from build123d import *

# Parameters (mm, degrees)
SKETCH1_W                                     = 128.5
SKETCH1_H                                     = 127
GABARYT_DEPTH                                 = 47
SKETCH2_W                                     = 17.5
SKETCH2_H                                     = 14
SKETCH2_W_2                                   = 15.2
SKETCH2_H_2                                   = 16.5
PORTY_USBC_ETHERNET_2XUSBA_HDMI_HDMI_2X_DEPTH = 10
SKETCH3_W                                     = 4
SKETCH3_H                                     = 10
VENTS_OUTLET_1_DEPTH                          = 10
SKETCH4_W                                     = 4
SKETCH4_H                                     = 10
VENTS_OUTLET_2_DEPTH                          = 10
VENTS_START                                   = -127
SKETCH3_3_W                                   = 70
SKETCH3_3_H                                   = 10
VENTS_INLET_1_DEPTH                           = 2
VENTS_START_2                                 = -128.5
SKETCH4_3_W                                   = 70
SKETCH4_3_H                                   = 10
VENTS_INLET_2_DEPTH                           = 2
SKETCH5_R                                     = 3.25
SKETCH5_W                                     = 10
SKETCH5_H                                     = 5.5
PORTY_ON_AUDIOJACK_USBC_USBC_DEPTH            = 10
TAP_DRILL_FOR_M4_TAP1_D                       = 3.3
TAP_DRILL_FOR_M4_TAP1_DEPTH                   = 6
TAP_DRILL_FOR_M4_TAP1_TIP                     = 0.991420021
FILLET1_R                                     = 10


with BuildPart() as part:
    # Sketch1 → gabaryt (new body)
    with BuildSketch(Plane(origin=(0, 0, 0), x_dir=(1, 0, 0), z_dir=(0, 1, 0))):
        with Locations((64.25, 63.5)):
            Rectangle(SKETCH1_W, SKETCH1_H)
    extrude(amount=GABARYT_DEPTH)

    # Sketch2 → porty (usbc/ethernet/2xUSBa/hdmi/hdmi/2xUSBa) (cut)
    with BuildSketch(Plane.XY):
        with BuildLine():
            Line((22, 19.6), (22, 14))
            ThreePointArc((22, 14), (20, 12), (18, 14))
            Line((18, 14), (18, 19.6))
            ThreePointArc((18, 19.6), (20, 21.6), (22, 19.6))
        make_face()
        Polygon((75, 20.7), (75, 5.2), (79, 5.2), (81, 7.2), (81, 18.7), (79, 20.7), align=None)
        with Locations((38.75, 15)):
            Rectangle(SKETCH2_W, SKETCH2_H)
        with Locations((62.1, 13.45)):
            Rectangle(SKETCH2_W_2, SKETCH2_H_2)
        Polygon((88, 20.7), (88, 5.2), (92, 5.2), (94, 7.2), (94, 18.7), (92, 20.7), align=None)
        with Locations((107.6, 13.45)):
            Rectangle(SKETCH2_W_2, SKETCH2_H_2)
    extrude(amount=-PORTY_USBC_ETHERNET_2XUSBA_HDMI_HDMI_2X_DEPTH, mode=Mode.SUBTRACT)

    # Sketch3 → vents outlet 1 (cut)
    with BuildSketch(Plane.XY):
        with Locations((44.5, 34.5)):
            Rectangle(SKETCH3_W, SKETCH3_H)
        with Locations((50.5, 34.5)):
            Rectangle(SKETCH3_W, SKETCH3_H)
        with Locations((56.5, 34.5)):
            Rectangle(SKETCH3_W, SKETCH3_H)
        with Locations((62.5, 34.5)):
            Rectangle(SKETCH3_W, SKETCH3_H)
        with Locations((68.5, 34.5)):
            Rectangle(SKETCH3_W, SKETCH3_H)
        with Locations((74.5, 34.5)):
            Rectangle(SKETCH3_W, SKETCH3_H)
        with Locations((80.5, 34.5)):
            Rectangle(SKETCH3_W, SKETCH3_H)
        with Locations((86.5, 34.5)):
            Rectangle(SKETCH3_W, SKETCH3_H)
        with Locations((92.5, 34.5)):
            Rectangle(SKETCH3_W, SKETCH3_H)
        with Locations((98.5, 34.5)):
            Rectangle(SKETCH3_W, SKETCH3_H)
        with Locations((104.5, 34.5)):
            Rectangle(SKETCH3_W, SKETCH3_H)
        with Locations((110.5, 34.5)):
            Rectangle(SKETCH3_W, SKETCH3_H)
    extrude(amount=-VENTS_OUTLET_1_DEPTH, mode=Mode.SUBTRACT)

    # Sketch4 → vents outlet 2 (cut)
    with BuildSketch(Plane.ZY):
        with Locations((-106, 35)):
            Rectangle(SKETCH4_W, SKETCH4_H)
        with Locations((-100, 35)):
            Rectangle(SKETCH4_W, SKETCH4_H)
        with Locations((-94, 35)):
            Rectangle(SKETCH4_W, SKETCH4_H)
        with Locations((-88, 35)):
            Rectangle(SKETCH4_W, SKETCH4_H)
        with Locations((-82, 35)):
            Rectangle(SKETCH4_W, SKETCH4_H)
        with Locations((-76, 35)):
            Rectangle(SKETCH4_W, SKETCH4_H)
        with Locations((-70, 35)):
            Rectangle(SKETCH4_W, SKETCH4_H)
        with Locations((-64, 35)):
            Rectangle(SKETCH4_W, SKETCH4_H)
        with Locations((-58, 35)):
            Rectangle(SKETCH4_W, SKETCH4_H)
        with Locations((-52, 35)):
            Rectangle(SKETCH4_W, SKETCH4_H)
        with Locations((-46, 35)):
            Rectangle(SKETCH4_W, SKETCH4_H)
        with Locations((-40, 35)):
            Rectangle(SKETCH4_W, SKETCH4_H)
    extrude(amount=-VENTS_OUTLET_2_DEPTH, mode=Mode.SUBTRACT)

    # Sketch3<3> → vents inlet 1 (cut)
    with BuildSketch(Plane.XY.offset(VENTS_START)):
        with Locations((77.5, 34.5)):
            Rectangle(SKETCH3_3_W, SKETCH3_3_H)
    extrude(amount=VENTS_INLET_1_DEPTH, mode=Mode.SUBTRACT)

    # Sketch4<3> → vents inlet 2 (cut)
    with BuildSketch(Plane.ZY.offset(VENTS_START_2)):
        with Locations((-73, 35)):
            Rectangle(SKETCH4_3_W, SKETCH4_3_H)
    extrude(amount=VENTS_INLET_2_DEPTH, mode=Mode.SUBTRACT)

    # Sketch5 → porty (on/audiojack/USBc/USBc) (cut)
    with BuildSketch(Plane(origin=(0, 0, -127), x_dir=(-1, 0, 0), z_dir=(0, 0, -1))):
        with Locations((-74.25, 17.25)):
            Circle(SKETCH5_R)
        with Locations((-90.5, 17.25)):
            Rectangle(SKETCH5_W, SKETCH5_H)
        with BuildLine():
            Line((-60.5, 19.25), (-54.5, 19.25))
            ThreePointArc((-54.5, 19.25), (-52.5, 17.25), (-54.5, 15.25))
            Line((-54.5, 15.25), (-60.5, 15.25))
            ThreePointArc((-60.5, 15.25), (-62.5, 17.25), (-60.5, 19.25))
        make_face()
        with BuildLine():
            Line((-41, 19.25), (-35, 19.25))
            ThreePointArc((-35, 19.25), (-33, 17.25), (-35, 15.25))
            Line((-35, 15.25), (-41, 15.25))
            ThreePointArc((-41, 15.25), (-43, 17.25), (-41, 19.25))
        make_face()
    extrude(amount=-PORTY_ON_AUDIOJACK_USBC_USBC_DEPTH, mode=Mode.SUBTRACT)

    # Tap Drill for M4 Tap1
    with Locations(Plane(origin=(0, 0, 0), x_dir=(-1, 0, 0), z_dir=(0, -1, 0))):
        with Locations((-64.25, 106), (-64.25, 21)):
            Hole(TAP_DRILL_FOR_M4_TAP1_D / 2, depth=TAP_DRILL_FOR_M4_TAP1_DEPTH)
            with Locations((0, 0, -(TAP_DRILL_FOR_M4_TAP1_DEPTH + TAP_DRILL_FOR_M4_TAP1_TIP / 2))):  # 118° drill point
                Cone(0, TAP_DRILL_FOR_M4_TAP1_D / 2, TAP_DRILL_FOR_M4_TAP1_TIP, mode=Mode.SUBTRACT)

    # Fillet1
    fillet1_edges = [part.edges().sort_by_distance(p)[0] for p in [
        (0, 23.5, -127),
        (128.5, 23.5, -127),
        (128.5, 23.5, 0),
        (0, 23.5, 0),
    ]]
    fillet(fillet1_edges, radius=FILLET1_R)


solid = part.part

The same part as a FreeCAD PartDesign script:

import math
import FreeCAD as App
import Part
import Sketcher


def edges_at(feature, points):
    """Names of the edges that pass closest to the given points."""
    edges = feature.Shape.Edges
    near = lambda p: min(range(len(edges)), key=lambda i: edges[i].distToShape(Part.Vertex(*p))[0])
    return sorted({f"Edge{near(p) + 1}" for p in points})

doc = App.newDocument("Part")
body = doc.addObject("PartDesign::Body", "Body")

# Sketch on XZ plane
sketch1 = body.newObject("Sketcher::SketchObject", "Sketch")
sketch1.AttachmentSupport = (doc.getObject("XZ_Plane"), [""])
sketch1.MapMode = "FlatFace"
sketch1.addGeometry(Part.LineSegment(App.Vector(0, -127, 0), App.Vector(0, 0, 0)), False)
sketch1.addGeometry(Part.LineSegment(App.Vector(0, 0, 0), App.Vector(128.5, 0, 0)), False)
sketch1.addGeometry(Part.LineSegment(App.Vector(128.5, 0, 0), App.Vector(128.5, -127, 0)), False)
sketch1.addGeometry(Part.LineSegment(App.Vector(128.5, -127, 0), App.Vector(0, -127, 0)), False)
sketch1.addConstraint(Sketcher.Constraint("Coincident", 0, 2, 1, 1))
sketch1.addConstraint(Sketcher.Constraint("Coincident", 1, 2, 2, 1))
sketch1.addConstraint(Sketcher.Constraint("Coincident", 2, 2, 3, 1))
sketch1.addConstraint(Sketcher.Constraint("Coincident", 3, 2, 0, 1))
sketch1.addConstraint(Sketcher.Constraint("Vertical", 0))
sketch1.addConstraint(Sketcher.Constraint("Horizontal", 1))
sketch1.addConstraint(Sketcher.Constraint("Vertical", 2))
sketch1.addConstraint(Sketcher.Constraint("Horizontal", 3))
sketch1.addConstraint(Sketcher.Constraint("Coincident", 0, 2, -1, 1))
sketch1.addConstraint(Sketcher.Constraint("DistanceY", 0, 1, 0, 2, 127.0))
sketch1.addConstraint(Sketcher.Constraint("DistanceX", 1, 1, 1, 2, 128.5))
pad1 = body.newObject("PartDesign::Pad", "Pad")
pad1.Profile = sketch1
pad1.Length = 47
pad1.Reversed = True

# Sketch on XY plane
sketch2 = body.newObject("Sketcher::SketchObject", "Sketch001")
sketch2.AttachmentSupport = (doc.getObject("XY_Plane"), [""])
sketch2.MapMode = "FlatFace"
sketch2.addGeometry(Part.LineSegment(App.Vector(22, 14, 0), App.Vector(22, 19.6, 0)), False)
sketch2.addGeometry(Part.ArcOfCircle(Part.Circle(App.Vector(20, 19.6, 0), App.Vector(0, 0, 1), 2), math.radians(0), math.radians(180)), False)
sketch2.addGeometry(Part.LineSegment(App.Vector(18, 19.6, 0), App.Vector(18, 14, 0)), False)
sketch2.addGeometry(Part.ArcOfCircle(Part.Circle(App.Vector(20, 14, 0), App.Vector(0, 0, 1), 2), math.radians(180), math.radians(360)), False)
sketch2.addGeometry(Part.LineSegment(App.Vector(75, 20.7, 0), App.Vector(75, 5.2, 0)), False)
sketch2.addGeometry(Part.LineSegment(App.Vector(75, 5.2, 0), App.Vector(79, 5.2, 0)), False)
sketch2.addGeometry(Part.LineSegment(App.Vector(79, 5.2, 0), App.Vector(81, 7.2, 0)), False)
sketch2.addGeometry(Part.LineSegment(App.Vector(81, 7.2, 0), App.Vector(81, 18.7, 0)), False)
sketch2.addGeometry(Part.LineSegment(App.Vector(81, 18.7, 0), App.Vector(79, 20.7, 0)), False)
sketch2.addGeometry(Part.LineSegment(App.Vector(79, 20.7, 0), App.Vector(75, 20.7, 0)), False)
sketch2.addGeometry(Part.LineSegment(App.Vector(30, 22, 0), App.Vector(30, 8, 0)), False)
sketch2.addGeometry(Part.LineSegment(App.Vector(30, 8, 0), App.Vector(47.5, 8, 0)), False)
sketch2.addGeometry(Part.LineSegment(App.Vector(47.5, 8, 0), App.Vector(47.5, 22, 0)), False)
sketch2.addGeometry(Part.LineSegment(App.Vector(47.5, 22, 0), App.Vector(30, 22, 0)), False)
sketch2.addGeometry(Part.LineSegment(App.Vector(54.5, 21.7, 0), App.Vector(54.5, 5.2, 0)), False)
sketch2.addGeometry(Part.LineSegment(App.Vector(54.5, 5.2, 0), App.Vector(69.7, 5.2, 0)), False)
sketch2.addGeometry(Part.LineSegment(App.Vector(69.7, 5.2, 0), App.Vector(69.7, 21.7, 0)), False)
sketch2.addGeometry(Part.LineSegment(App.Vector(69.7, 21.7, 0), App.Vector(54.5, 21.7, 0)), False)
sketch2.addGeometry(Part.LineSegment(App.Vector(88, 20.7, 0), App.Vector(88, 5.2, 0)), False)
sketch2.addGeometry(Part.LineSegment(App.Vector(88, 5.2, 0), App.Vector(92, 5.2, 0)), False)
sketch2.addGeometry(Part.LineSegment(App.Vector(92, 5.2, 0), App.Vector(94, 7.2, 0)), False)
sketch2.addGeometry(Part.LineSegment(App.Vector(94, 7.2, 0), App.Vector(94, 18.7, 0)), False)
sketch2.addGeometry(Part.LineSegment(App.Vector(94, 18.7, 0), App.Vector(92, 20.7, 0)), False)
sketch2.addGeometry(Part.LineSegment(App.Vector(92, 20.7, 0), App.Vector(88, 20.7, 0)), False)
sketch2.addGeometry(Part.LineSegment(App.Vector(100, 21.7, 0), App.Vector(100, 5.2, 0)), False)
sketch2.addGeometry(Part.LineSegment(App.Vector(100, 5.2, 0), App.Vector(115.2, 5.2, 0)), False)
sketch2.addGeometry(Part.LineSegment(App.Vector(115.2, 5.2, 0), App.Vector(115.2, 21.7, 0)), False)
sketch2.addGeometry(Part.LineSegment(App.Vector(115.2, 21.7, 0), App.Vector(100, 21.7, 0)), False)
sketch2.addConstraint(Sketcher.Constraint("Tangent", 0, 2, 1, 1))
sketch2.addConstraint(Sketcher.Constraint("Tangent", 1, 2, 2, 1))
sketch2.addConstraint(Sketcher.Constraint("Tangent", 2, 2, 3, 1))
sketch2.addConstraint(Sketcher.Constraint("Tangent", 3, 2, 0, 1))
sketch2.addConstraint(Sketcher.Constraint("Coincident", 4, 2, 5, 1))
sketch2.addConstraint(Sketcher.Constraint("Coincident", 5, 2, 6, 1))
sketch2.addConstraint(Sketcher.Constraint("Coincident", 6, 2, 7, 1))
sketch2.addConstraint(Sketcher.Constraint("Coincident", 7, 2, 8, 1))
sketch2.addConstraint(Sketcher.Constraint("Coincident", 8, 2, 9, 1))
sketch2.addConstraint(Sketcher.Constraint("Coincident", 9, 2, 4, 1))
sketch2.addConstraint(Sketcher.Constraint("Coincident", 10, 2, 11, 1))
sketch2.addConstraint(Sketcher.Constraint("Coincident", 11, 2, 12, 1))
sketch2.addConstraint(Sketcher.Constraint("Coincident", 12, 2, 13, 1))
sketch2.addConstraint(Sketcher.Constraint("Coincident", 13, 2, 10, 1))
sketch2.addConstraint(Sketcher.Constraint("Coincident", 14, 2, 15, 1))
sketch2.addConstraint(Sketcher.Constraint("Coincident", 15, 2, 16, 1))
sketch2.addConstraint(Sketcher.Constraint("Coincident", 16, 2, 17, 1))
sketch2.addConstraint(Sketcher.Constraint("Coincident", 17, 2, 14, 1))
sketch2.addConstraint(Sketcher.Constraint("Coincident", 18, 2, 19, 1))
sketch2.addConstraint(Sketcher.Constraint("Coincident", 19, 2, 20, 1))
sketch2.addConstraint(Sketcher.Constraint("Coincident", 20, 2, 21, 1))
sketch2.addConstraint(Sketcher.Constraint("Coincident", 21, 2, 22, 1))
sketch2.addConstraint(Sketcher.Constraint("Coincident", 22, 2, 23, 1))
sketch2.addConstraint(Sketcher.Constraint("Coincident", 23, 2, 18, 1))
sketch2.addConstraint(Sketcher.Constraint("Coincident", 24, 2, 25, 1))
sketch2.addConstraint(Sketcher.Constraint("Coincident", 25, 2, 26, 1))
sketch2.addConstraint(Sketcher.Constraint("Coincident", 26, 2, 27, 1))
sketch2.addConstraint(Sketcher.Constraint("Coincident", 27, 2, 24, 1))
sketch2.addConstraint(Sketcher.Constraint("Vertical", 0))
sketch2.addConstraint(Sketcher.Constraint("Vertical", 2))
sketch2.addConstraint(Sketcher.Constraint("Vertical", 4))
sketch2.addConstraint(Sketcher.Constraint("Horizontal", 5))
sketch2.addConstraint(Sketcher.Constraint("Vertical", 7))
sketch2.addConstraint(Sketcher.Constraint("Horizontal", 9))
sketch2.addConstraint(Sketcher.Constraint("Vertical", 10))
sketch2.addConstraint(Sketcher.Constraint("Horizontal", 11))
sketch2.addConstraint(Sketcher.Constraint("Vertical", 12))
sketch2.addConstraint(Sketcher.Constraint("Horizontal", 13))
sketch2.addConstraint(Sketcher.Constraint("Vertical", 14))
sketch2.addConstraint(Sketcher.Constraint("Horizontal", 15))
sketch2.addConstraint(Sketcher.Constraint("Vertical", 16))
sketch2.addConstraint(Sketcher.Constraint("Horizontal", 17))
sketch2.addConstraint(Sketcher.Constraint("Vertical", 18))
sketch2.addConstraint(Sketcher.Constraint("Horizontal", 19))
sketch2.addConstraint(Sketcher.Constraint("Vertical", 21))
sketch2.addConstraint(Sketcher.Constraint("Horizontal", 23))
sketch2.addConstraint(Sketcher.Constraint("Vertical", 24))
sketch2.addConstraint(Sketcher.Constraint("Horizontal", 25))
sketch2.addConstraint(Sketcher.Constraint("Vertical", 26))
sketch2.addConstraint(Sketcher.Constraint("Horizontal", 27))
sketch2.addConstraint(Sketcher.Constraint("Perpendicular", 6, 8))
sketch2.addConstraint(Sketcher.Constraint("Perpendicular", 8, 20))
sketch2.addConstraint(Sketcher.Constraint("Perpendicular", 20, 22))
sketch2.addConstraint(Sketcher.Constraint("Horizontal", 5, 2, 14, 2))
sketch2.addConstraint(Sketcher.Constraint("Horizontal", 15, 2, 18, 2))
sketch2.addConstraint(Sketcher.Constraint("Horizontal", 6, 2, 20, 2))
sketch2.addConstraint(Sketcher.Constraint("Horizontal", 7, 2, 21, 2))
sketch2.addConstraint(Sketcher.Constraint("Horizontal", 9, 2, 22, 2))
sketch2.addConstraint(Sketcher.Constraint("Horizontal", 19, 2, 24, 2))
sketch2.addConstraint(Sketcher.Constraint("Horizontal", 17, 2, 26, 2))
sketch2.addConstraint(Sketcher.Constraint("Vertical", 5, 2, 8, 2))
sketch2.addConstraint(Sketcher.Constraint("Equal", 9, 19))
sketch2.addConstraint(Sketcher.Constraint("Equal", 17, 25))
sketch2.addConstraint(Sketcher.Constraint("Equal", 6, 8))
sketch2.addConstraint(Sketcher.Constraint("Radius", 1, 2.0))
sketch2.addConstraint(Sketcher.Constraint("DistanceX", 5, 1, 5, 2, 4.0))
sketch2.addConstraint(Sketcher.Constraint("DistanceY", 10, 2, 10, 1, 14.0))
sketch2.addConstraint(Sketcher.Constraint("DistanceX", 11, 1, 11, 2, 17.5))
sketch2.addConstraint(Sketcher.Constraint("DistanceX", 15, 1, 15, 2, 15.2))
sketch2.addConstraint(Sketcher.Constraint("DistanceY", 0, 1, 0, 2, 5.6))
sketch2.addConstraint(Sketcher.Constraint("DistanceY", 4, 2, 4, 1, 15.5))
sketch2.addConstraint(Sketcher.Constraint("DistanceY", 7, 1, 7, 2, 11.5))
sketch2.addConstraint(Sketcher.Constraint("DistanceY", 14, 2, 14, 1, 16.5))
sketch2.addConstraint(Sketcher.Constraint("DistanceX", -1, 1, 1, 3, 20.0))
sketch2.addConstraint(Sketcher.Constraint("DistanceY", -1, 1, 3, 3, 14.0))
sketch2.addConstraint(Sketcher.Constraint("DistanceX", -1, 1, 4, 2, 75.0))
sketch2.addConstraint(Sketcher.Constraint("DistanceX", -1, 1, 10, 2, 30.0))
sketch2.addConstraint(Sketcher.Constraint("DistanceY", -1, 1, 10, 2, 8.0))
sketch2.addConstraint(Sketcher.Constraint("DistanceX", -1, 1, 18, 2, 88.0))
sketch2.addConstraint(Sketcher.Constraint("DistanceX", -1, 1, 24, 2, 100.0))
sketch2.addConstraint(Sketcher.Constraint("DistanceX", 11, 2, 14, 2, 7.0))
sketch2.addConstraint(Sketcher.Constraint("DistanceY", -1, 1, 4, 2, 5.2))
pocket1 = body.newObject("PartDesign::Pocket", "Pocket")
pocket1.Profile = sketch2
pocket1.Length = 10

# Sketch on XY plane
sketch3 = body.newObject("Sketcher::SketchObject", "Sketch002")
sketch3.AttachmentSupport = (doc.getObject("XY_Plane"), [""])
sketch3.MapMode = "FlatFace"
sketch3.addGeometry(Part.LineSegment(App.Vector(42.5, 39.5, 0), App.Vector(42.5, 29.5, 0)), False)
sketch3.addGeometry(Part.LineSegment(App.Vector(42.5, 29.5, 0), App.Vector(46.5, 29.5, 0)), False)
sketch3.addGeometry(Part.LineSegment(App.Vector(46.5, 29.5, 0), App.Vector(46.5, 39.5, 0)), False)
sketch3.addGeometry(Part.LineSegment(App.Vector(46.5, 39.5, 0), App.Vector(42.5, 39.5, 0)), False)
sketch3.addGeometry(Part.LineSegment(App.Vector(48.5, 39.5, 0), App.Vector(48.5, 29.5, 0)), False)
sketch3.addGeometry(Part.LineSegment(App.Vector(48.5, 29.5, 0), App.Vector(52.5, 29.5, 0)), False)
sketch3.addGeometry(Part.LineSegment(App.Vector(52.5, 29.5, 0), App.Vector(52.5, 39.5, 0)), False)
sketch3.addGeometry(Part.LineSegment(App.Vector(52.5, 39.5, 0), App.Vector(48.5, 39.5, 0)), False)
sketch3.addGeometry(Part.LineSegment(App.Vector(54.5, 39.5, 0), App.Vector(54.5, 29.5, 0)), False)
sketch3.addGeometry(Part.LineSegment(App.Vector(54.5, 29.5, 0), App.Vector(58.5, 29.5, 0)), False)
sketch3.addGeometry(Part.LineSegment(App.Vector(58.5, 29.5, 0), App.Vector(58.5, 39.5, 0)), False)
sketch3.addGeometry(Part.LineSegment(App.Vector(58.5, 39.5, 0), App.Vector(54.5, 39.5, 0)), False)
sketch3.addGeometry(Part.LineSegment(App.Vector(60.5, 39.5, 0), App.Vector(60.5, 29.5, 0)), False)
sketch3.addGeometry(Part.LineSegment(App.Vector(60.5, 29.5, 0), App.Vector(64.5, 29.5, 0)), False)
sketch3.addGeometry(Part.LineSegment(App.Vector(64.5, 29.5, 0), App.Vector(64.5, 39.5, 0)), False)
sketch3.addGeometry(Part.LineSegment(App.Vector(64.5, 39.5, 0), App.Vector(60.5, 39.5, 0)), False)
sketch3.addGeometry(Part.LineSegment(App.Vector(66.5, 39.5, 0), App.Vector(66.5, 29.5, 0)), False)
sketch3.addGeometry(Part.LineSegment(App.Vector(66.5, 29.5, 0), App.Vector(70.5, 29.5, 0)), False)
sketch3.addGeometry(Part.LineSegment(App.Vector(70.5, 29.5, 0), App.Vector(70.5, 39.5, 0)), False)
sketch3.addGeometry(Part.LineSegment(App.Vector(70.5, 39.5, 0), App.Vector(66.5, 39.5, 0)), False)
sketch3.addGeometry(Part.LineSegment(App.Vector(72.5, 39.5, 0), App.Vector(72.5, 29.5, 0)), False)
sketch3.addGeometry(Part.LineSegment(App.Vector(72.5, 29.5, 0), App.Vector(76.5, 29.5, 0)), False)
sketch3.addGeometry(Part.LineSegment(App.Vector(76.5, 29.5, 0), App.Vector(76.5, 39.5, 0)), False)
sketch3.addGeometry(Part.LineSegment(App.Vector(76.5, 39.5, 0), App.Vector(72.5, 39.5, 0)), False)
sketch3.addGeometry(Part.LineSegment(App.Vector(78.5, 39.5, 0), App.Vector(78.5, 29.5, 0)), False)
sketch3.addGeometry(Part.LineSegment(App.Vector(78.5, 29.5, 0), App.Vector(82.5, 29.5, 0)), False)
sketch3.addGeometry(Part.LineSegment(App.Vector(82.5, 29.5, 0), App.Vector(82.5, 39.5, 0)), False)
sketch3.addGeometry(Part.LineSegment(App.Vector(82.5, 39.5, 0), App.Vector(78.5, 39.5, 0)), False)
sketch3.addGeometry(Part.LineSegment(App.Vector(84.5, 39.5, 0), App.Vector(84.5, 29.5, 0)), False)
sketch3.addGeometry(Part.LineSegment(App.Vector(84.5, 29.5, 0), App.Vector(88.5, 29.5, 0)), False)
sketch3.addGeometry(Part.LineSegment(App.Vector(88.5, 29.5, 0), App.Vector(88.5, 39.5, 0)), False)
sketch3.addGeometry(Part.LineSegment(App.Vector(88.5, 39.5, 0), App.Vector(84.5, 39.5, 0)), False)
sketch3.addGeometry(Part.LineSegment(App.Vector(90.5, 39.5, 0), App.Vector(90.5, 29.5, 0)), False)
sketch3.addGeometry(Part.LineSegment(App.Vector(90.5, 29.5, 0), App.Vector(94.5, 29.5, 0)), False)
sketch3.addGeometry(Part.LineSegment(App.Vector(94.5, 29.5, 0), App.Vector(94.5, 39.5, 0)), False)
sketch3.addGeometry(Part.LineSegment(App.Vector(94.5, 39.5, 0), App.Vector(90.5, 39.5, 0)), False)
sketch3.addGeometry(Part.LineSegment(App.Vector(96.5, 39.5, 0), App.Vector(96.5, 29.5, 0)), False)
sketch3.addGeometry(Part.LineSegment(App.Vector(96.5, 29.5, 0), App.Vector(100.5, 29.5, 0)), False)
sketch3.addGeometry(Part.LineSegment(App.Vector(100.5, 29.5, 0), App.Vector(100.5, 39.5, 0)), False)
sketch3.addGeometry(Part.LineSegment(App.Vector(100.5, 39.5, 0), App.Vector(96.5, 39.5, 0)), False)
sketch3.addGeometry(Part.LineSegment(App.Vector(102.5, 39.5, 0), App.Vector(102.5, 29.5, 0)), False)
sketch3.addGeometry(Part.LineSegment(App.Vector(102.5, 29.5, 0), App.Vector(106.5, 29.5, 0)), False)
sketch3.addGeometry(Part.LineSegment(App.Vector(106.5, 29.5, 0), App.Vector(106.5, 39.5, 0)), False)
sketch3.addGeometry(Part.LineSegment(App.Vector(106.5, 39.5, 0), App.Vector(102.5, 39.5, 0)), False)
sketch3.addGeometry(Part.LineSegment(App.Vector(108.5, 39.5, 0), App.Vector(108.5, 29.5, 0)), False)
sketch3.addGeometry(Part.LineSegment(App.Vector(108.5, 29.5, 0), App.Vector(112.5, 29.5, 0)), False)
sketch3.addGeometry(Part.LineSegment(App.Vector(112.5, 29.5, 0), App.Vector(112.5, 39.5, 0)), False)
sketch3.addGeometry(Part.LineSegment(App.Vector(112.5, 39.5, 0), App.Vector(108.5, 39.5, 0)), False)
sketch3.addConstraint(Sketcher.Constraint("Coincident", 0, 2, 1, 1))
sketch3.addConstraint(Sketcher.Constraint("Coincident", 1, 2, 2, 1))
sketch3.addConstraint(Sketcher.Constraint("Coincident", 2, 2, 3, 1))
sketch3.addConstraint(Sketcher.Constraint("Coincident", 3, 2, 0, 1))
sketch3.addConstraint(Sketcher.Constraint("Coincident", 4, 2, 5, 1))
sketch3.addConstraint(Sketcher.Constraint("Coincident", 5, 2, 6, 1))
sketch3.addConstraint(Sketcher.Constraint("Coincident", 6, 2, 7, 1))
sketch3.addConstraint(Sketcher.Constraint("Coincident", 7, 2, 4, 1))
sketch3.addConstraint(Sketcher.Constraint("Coincident", 8, 2, 9, 1))
sketch3.addConstraint(Sketcher.Constraint("Coincident", 9, 2, 10, 1))
sketch3.addConstraint(Sketcher.Constraint("Coincident", 10, 2, 11, 1))
sketch3.addConstraint(Sketcher.Constraint("Coincident", 11, 2, 8, 1))
sketch3.addConstraint(Sketcher.Constraint("Coincident", 12, 2, 13, 1))
sketch3.addConstraint(Sketcher.Constraint("Coincident", 13, 2, 14, 1))
sketch3.addConstraint(Sketcher.Constraint("Coincident", 14, 2, 15, 1))
sketch3.addConstraint(Sketcher.Constraint("Coincident", 15, 2, 12, 1))
sketch3.addConstraint(Sketcher.Constraint("Coincident", 16, 2, 17, 1))
sketch3.addConstraint(Sketcher.Constraint("Coincident", 17, 2, 18, 1))
sketch3.addConstraint(Sketcher.Constraint("Coincident", 18, 2, 19, 1))
sketch3.addConstraint(Sketcher.Constraint("Coincident", 19, 2, 16, 1))
sketch3.addConstraint(Sketcher.Constraint("Coincident", 20, 2, 21, 1))
sketch3.addConstraint(Sketcher.Constraint("Coincident", 21, 2, 22, 1))
sketch3.addConstraint(Sketcher.Constraint("Coincident", 22, 2, 23, 1))
sketch3.addConstraint(Sketcher.Constraint("Coincident", 23, 2, 20, 1))
sketch3.addConstraint(Sketcher.Constraint("Coincident", 24, 2, 25, 1))
sketch3.addConstraint(Sketcher.Constraint("Coincident", 25, 2, 26, 1))
sketch3.addConstraint(Sketcher.Constraint("Coincident", 26, 2, 27, 1))
sketch3.addConstraint(Sketcher.Constraint("Coincident", 27, 2, 24, 1))
sketch3.addConstraint(Sketcher.Constraint("Coincident", 28, 2, 29, 1))
sketch3.addConstraint(Sketcher.Constraint("Coincident", 29, 2, 30, 1))
sketch3.addConstraint(Sketcher.Constraint("Coincident", 30, 2, 31, 1))
sketch3.addConstraint(Sketcher.Constraint("Coincident", 31, 2, 28, 1))
sketch3.addConstraint(Sketcher.Constraint("Coincident", 32, 2, 33, 1))
sketch3.addConstraint(Sketcher.Constraint("Coincident", 33, 2, 34, 1))
sketch3.addConstraint(Sketcher.Constraint("Coincident", 34, 2, 35, 1))
sketch3.addConstraint(Sketcher.Constraint("Coincident", 35, 2, 32, 1))
sketch3.addConstraint(Sketcher.Constraint("Coincident", 36, 2, 37, 1))
sketch3.addConstraint(Sketcher.Constraint("Coincident", 37, 2, 38, 1))
sketch3.addConstraint(Sketcher.Constraint("Coincident", 38, 2, 39, 1))
sketch3.addConstraint(Sketcher.Constraint("Coincident", 39, 2, 36, 1))
sketch3.addConstraint(Sketcher.Constraint("Coincident", 40, 2, 41, 1))
sketch3.addConstraint(Sketcher.Constraint("Coincident", 41, 2, 42, 1))
sketch3.addConstraint(Sketcher.Constraint("Coincident", 42, 2, 43, 1))
sketch3.addConstraint(Sketcher.Constraint("Coincident", 43, 2, 40, 1))
sketch3.addConstraint(Sketcher.Constraint("Coincident", 44, 2, 45, 1))
sketch3.addConstraint(Sketcher.Constraint("Coincident", 45, 2, 46, 1))
sketch3.addConstraint(Sketcher.Constraint("Coincident", 46, 2, 47, 1))
sketch3.addConstraint(Sketcher.Constraint("Coincident", 47, 2, 44, 1))
sketch3.addConstraint(Sketcher.Constraint("Vertical", 0))
sketch3.addConstraint(Sketcher.Constraint("Horizontal", 1))
sketch3.addConstraint(Sketcher.Constraint("Vertical", 2))
sketch3.addConstraint(Sketcher.Constraint("Horizontal", 3))
sketch3.addConstraint(Sketcher.Constraint("Vertical", 4))
sketch3.addConstraint(Sketcher.Constraint("Horizontal", 5))
sketch3.addConstraint(Sketcher.Constraint("Vertical", 6))
sketch3.addConstraint(Sketcher.Constraint("Horizontal", 7))
sketch3.addConstraint(Sketcher.Constraint("Vertical", 8))
sketch3.addConstraint(Sketcher.Constraint("Horizontal", 9))
sketch3.addConstraint(Sketcher.Constraint("Vertical", 10))
sketch3.addConstraint(Sketcher.Constraint("Horizontal", 11))
sketch3.addConstraint(Sketcher.Constraint("Vertical", 12))
sketch3.addConstraint(Sketcher.Constraint("Horizontal", 13))
sketch3.addConstraint(Sketcher.Constraint("Vertical", 14))
sketch3.addConstraint(Sketcher.Constraint("Horizontal", 15))
sketch3.addConstraint(Sketcher.Constraint("Vertical", 16))
sketch3.addConstraint(Sketcher.Constraint("Horizontal", 17))
sketch3.addConstraint(Sketcher.Constraint("Vertical", 18))
sketch3.addConstraint(Sketcher.Constraint("Horizontal", 19))
sketch3.addConstraint(Sketcher.Constraint("Vertical", 20))
sketch3.addConstraint(Sketcher.Constraint("Horizontal", 21))
sketch3.addConstraint(Sketcher.Constraint("Vertical", 22))
sketch3.addConstraint(Sketcher.Constraint("Horizontal", 23))
sketch3.addConstraint(Sketcher.Constraint("Vertical", 24))
sketch3.addConstraint(Sketcher.Constraint("Horizontal", 25))
sketch3.addConstraint(Sketcher.Constraint("Vertical", 26))
sketch3.addConstraint(Sketcher.Constraint("Horizontal", 27))
sketch3.addConstraint(Sketcher.Constraint("Vertical", 28))
sketch3.addConstraint(Sketcher.Constraint("Horizontal", 29))
sketch3.addConstraint(Sketcher.Constraint("Vertical", 30))
sketch3.addConstraint(Sketcher.Constraint("Horizontal", 31))
sketch3.addConstraint(Sketcher.Constraint("Vertical", 32))
sketch3.addConstraint(Sketcher.Constraint("Horizontal", 33))
sketch3.addConstraint(Sketcher.Constraint("Vertical", 34))
sketch3.addConstraint(Sketcher.Constraint("Horizontal", 35))
sketch3.addConstraint(Sketcher.Constraint("Vertical", 36))
sketch3.addConstraint(Sketcher.Constraint("Horizontal", 37))
sketch3.addConstraint(Sketcher.Constraint("Vertical", 38))
sketch3.addConstraint(Sketcher.Constraint("Horizontal", 39))
sketch3.addConstraint(Sketcher.Constraint("Vertical", 40))
sketch3.addConstraint(Sketcher.Constraint("Horizontal", 41))
sketch3.addConstraint(Sketcher.Constraint("Vertical", 42))
sketch3.addConstraint(Sketcher.Constraint("Horizontal", 43))
sketch3.addConstraint(Sketcher.Constraint("Vertical", 44))
sketch3.addConstraint(Sketcher.Constraint("Horizontal", 45))
sketch3.addConstraint(Sketcher.Constraint("Vertical", 46))
sketch3.addConstraint(Sketcher.Constraint("Horizontal", 47))
sketch3.addConstraint(Sketcher.Constraint("Horizontal", 1, 2, 4, 2))
sketch3.addConstraint(Sketcher.Constraint("Horizontal", 3, 2, 6, 2))
sketch3.addConstraint(Sketcher.Constraint("Horizontal", 5, 2, 8, 2))
sketch3.addConstraint(Sketcher.Constraint("Horizontal", 7, 2, 10, 2))
sketch3.addConstraint(Sketcher.Constraint("Horizontal", 9, 2, 12, 2))
sketch3.addConstraint(Sketcher.Constraint("Horizontal", 11, 2, 14, 2))
sketch3.addConstraint(Sketcher.Constraint("Horizontal", 13, 2, 16, 2))
sketch3.addConstraint(Sketcher.Constraint("Horizontal", 15, 2, 18, 2))
sketch3.addConstraint(Sketcher.Constraint("Horizontal", 17, 2, 20, 2))
sketch3.addConstraint(Sketcher.Constraint("Horizontal", 19, 2, 22, 2))
sketch3.addConstraint(Sketcher.Constraint("Horizontal", 21, 2, 24, 2))
sketch3.addConstraint(Sketcher.Constraint("Horizontal", 23, 2, 26, 2))
sketch3.addConstraint(Sketcher.Constraint("Horizontal", 25, 2, 28, 2))
sketch3.addConstraint(Sketcher.Constraint("Horizontal", 27, 2, 30, 2))
sketch3.addConstraint(Sketcher.Constraint("Horizontal", 29, 2, 32, 2))
sketch3.addConstraint(Sketcher.Constraint("Horizontal", 31, 2, 34, 2))
sketch3.addConstraint(Sketcher.Constraint("Horizontal", 33, 2, 36, 2))
sketch3.addConstraint(Sketcher.Constraint("Horizontal", 35, 2, 38, 2))
sketch3.addConstraint(Sketcher.Constraint("Horizontal", 37, 2, 40, 2))
sketch3.addConstraint(Sketcher.Constraint("Horizontal", 39, 2, 42, 2))
sketch3.addConstraint(Sketcher.Constraint("Horizontal", 41, 2, 44, 2))
sketch3.addConstraint(Sketcher.Constraint("Horizontal", 43, 2, 46, 2))
sketch3.addConstraint(Sketcher.Constraint("Equal", 3, 5))
sketch3.addConstraint(Sketcher.Constraint("Equal", 7, 9))
sketch3.addConstraint(Sketcher.Constraint("Equal", 11, 13))
sketch3.addConstraint(Sketcher.Constraint("Equal", 15, 17))
sketch3.addConstraint(Sketcher.Constraint("Equal", 19, 21))
sketch3.addConstraint(Sketcher.Constraint("Equal", 23, 25))
sketch3.addConstraint(Sketcher.Constraint("Equal", 27, 29))
sketch3.addConstraint(Sketcher.Constraint("Equal", 31, 33))
sketch3.addConstraint(Sketcher.Constraint("Equal", 35, 37))
sketch3.addConstraint(Sketcher.Constraint("Equal", 39, 41))
sketch3.addConstraint(Sketcher.Constraint("Equal", 43, 45))
sketch3.addConstraint(Sketcher.Constraint("DistanceX", 1, 1, 1, 2, 4.0))
sketch3.addConstraint(Sketcher.Constraint("DistanceY", 0, 2, 0, 1, 10.0))
sketch3.addConstraint(Sketcher.Constraint("DistanceX", 1, 2, 4, 2, 2.0))
sketch3.addConstraint(Sketcher.Constraint("DistanceX", 5, 2, 8, 2, 2.0))
sketch3.addConstraint(Sketcher.Constraint("DistanceX", 9, 2, 12, 2, 2.0))
sketch3.addConstraint(Sketcher.Constraint("DistanceX", 13, 2, 16, 2, 2.0))
sketch3.addConstraint(Sketcher.Constraint("DistanceX", 17, 2, 20, 2, 2.0))
sketch3.addConstraint(Sketcher.Constraint("DistanceX", 21, 2, 24, 2, 2.0))
sketch3.addConstraint(Sketcher.Constraint("DistanceX", 25, 2, 28, 2, 2.0))
sketch3.addConstraint(Sketcher.Constraint("DistanceX", 29, 2, 32, 2, 2.0))
sketch3.addConstraint(Sketcher.Constraint("DistanceX", 33, 2, 36, 2, 2.0))
sketch3.addConstraint(Sketcher.Constraint("DistanceX", 37, 2, 40, 2, 2.0))
sketch3.addConstraint(Sketcher.Constraint("DistanceX", 41, 2, 44, 2, 2.0))
sketch3.addConstraint(Sketcher.Constraint("DistanceX", -1, 1, 0, 2, 42.5))
sketch3.addConstraint(Sketcher.Constraint("DistanceY", -1, 1, 0, 2, 29.5))
pocket2 = body.newObject("PartDesign::Pocket", "Pocket001")
pocket2.Profile = sketch3
pocket2.Length = 10

# Sketch on YZ plane
sketch4 = body.newObject("Sketcher::SketchObject", "Sketch003")
sketch4.AttachmentSupport = (doc.getObject("YZ_Plane"), [""])
sketch4.MapMode = "FlatFace"
sketch4.addGeometry(Part.LineSegment(App.Vector(40, -108, 0), App.Vector(30, -108, 0)), False)
sketch4.addGeometry(Part.LineSegment(App.Vector(30, -108, 0), App.Vector(30, -104, 0)), False)
sketch4.addGeometry(Part.LineSegment(App.Vector(30, -104, 0), App.Vector(40, -104, 0)), False)
sketch4.addGeometry(Part.LineSegment(App.Vector(40, -104, 0), App.Vector(40, -108, 0)), False)
sketch4.addGeometry(Part.LineSegment(App.Vector(40, -102, 0), App.Vector(30, -102, 0)), False)
sketch4.addGeometry(Part.LineSegment(App.Vector(30, -102, 0), App.Vector(30, -98, 0)), False)
sketch4.addGeometry(Part.LineSegment(App.Vector(30, -98, 0), App.Vector(40, -98, 0)), False)
sketch4.addGeometry(Part.LineSegment(App.Vector(40, -98, 0), App.Vector(40, -102, 0)), False)
sketch4.addGeometry(Part.LineSegment(App.Vector(40, -96, 0), App.Vector(30, -96, 0)), False)
sketch4.addGeometry(Part.LineSegment(App.Vector(30, -96, 0), App.Vector(30, -92, 0)), False)
sketch4.addGeometry(Part.LineSegment(App.Vector(30, -92, 0), App.Vector(40, -92, 0)), False)
sketch4.addGeometry(Part.LineSegment(App.Vector(40, -92, 0), App.Vector(40, -96, 0)), False)
sketch4.addGeometry(Part.LineSegment(App.Vector(40, -90, 0), App.Vector(30, -90, 0)), False)
sketch4.addGeometry(Part.LineSegment(App.Vector(30, -90, 0), App.Vector(30, -86, 0)), False)
sketch4.addGeometry(Part.LineSegment(App.Vector(30, -86, 0), App.Vector(40, -86, 0)), False)
sketch4.addGeometry(Part.LineSegment(App.Vector(40, -86, 0), App.Vector(40, -90, 0)), False)
sketch4.addGeometry(Part.LineSegment(App.Vector(40, -84, 0), App.Vector(30, -84, 0)), False)
sketch4.addGeometry(Part.LineSegment(App.Vector(30, -84, 0), App.Vector(30, -80, 0)), False)
sketch4.addGeometry(Part.LineSegment(App.Vector(30, -80, 0), App.Vector(40, -80, 0)), False)
sketch4.addGeometry(Part.LineSegment(App.Vector(40, -80, 0), App.Vector(40, -84, 0)), False)
sketch4.addGeometry(Part.LineSegment(App.Vector(40, -78, 0), App.Vector(30, -78, 0)), False)
sketch4.addGeometry(Part.LineSegment(App.Vector(30, -78, 0), App.Vector(30, -74, 0)), False)
sketch4.addGeometry(Part.LineSegment(App.Vector(30, -74, 0), App.Vector(40, -74, 0)), False)
sketch4.addGeometry(Part.LineSegment(App.Vector(40, -74, 0), App.Vector(40, -78, 0)), False)
sketch4.addGeometry(Part.LineSegment(App.Vector(40, -72, 0), App.Vector(30, -72, 0)), False)
sketch4.addGeometry(Part.LineSegment(App.Vector(30, -72, 0), App.Vector(30, -68, 0)), False)
sketch4.addGeometry(Part.LineSegment(App.Vector(30, -68, 0), App.Vector(40, -68, 0)), False)
sketch4.addGeometry(Part.LineSegment(App.Vector(40, -68, 0), App.Vector(40, -72, 0)), False)
sketch4.addGeometry(Part.LineSegment(App.Vector(40, -66, 0), App.Vector(30, -66, 0)), False)
sketch4.addGeometry(Part.LineSegment(App.Vector(30, -66, 0), App.Vector(30, -62, 0)), False)
sketch4.addGeometry(Part.LineSegment(App.Vector(30, -62, 0), App.Vector(40, -62, 0)), False)
sketch4.addGeometry(Part.LineSegment(App.Vector(40, -62, 0), App.Vector(40, -66, 0)), False)
sketch4.addGeometry(Part.LineSegment(App.Vector(40, -60, 0), App.Vector(30, -60, 0)), False)
sketch4.addGeometry(Part.LineSegment(App.Vector(30, -60, 0), App.Vector(30, -56, 0)), False)
sketch4.addGeometry(Part.LineSegment(App.Vector(30, -56, 0), App.Vector(40, -56, 0)), False)
sketch4.addGeometry(Part.LineSegment(App.Vector(40, -56, 0), App.Vector(40, -60, 0)), False)
sketch4.addGeometry(Part.LineSegment(App.Vector(40, -54, 0), App.Vector(30, -54, 0)), False)
sketch4.addGeometry(Part.LineSegment(App.Vector(30, -54, 0), App.Vector(30, -50, 0)), False)
sketch4.addGeometry(Part.LineSegment(App.Vector(30, -50, 0), App.Vector(40, -50, 0)), False)
sketch4.addGeometry(Part.LineSegment(App.Vector(40, -50, 0), App.Vector(40, -54, 0)), False)
sketch4.addGeometry(Part.LineSegment(App.Vector(40, -48, 0), App.Vector(30, -48, 0)), False)
sketch4.addGeometry(Part.LineSegment(App.Vector(30, -48, 0), App.Vector(30, -44, 0)), False)
sketch4.addGeometry(Part.LineSegment(App.Vector(30, -44, 0), App.Vector(40, -44, 0)), False)
sketch4.addGeometry(Part.LineSegment(App.Vector(40, -44, 0), App.Vector(40, -48, 0)), False)
sketch4.addGeometry(Part.LineSegment(App.Vector(40, -42, 0), App.Vector(30, -42, 0)), False)
sketch4.addGeometry(Part.LineSegment(App.Vector(30, -42, 0), App.Vector(30, -38, 0)), False)
sketch4.addGeometry(Part.LineSegment(App.Vector(30, -38, 0), App.Vector(40, -38, 0)), False)
sketch4.addGeometry(Part.LineSegment(App.Vector(40, -38, 0), App.Vector(40, -42, 0)), False)
sketch4.addConstraint(Sketcher.Constraint("Coincident", 0, 2, 1, 1))
sketch4.addConstraint(Sketcher.Constraint("Coincident", 1, 2, 2, 1))
sketch4.addConstraint(Sketcher.Constraint("Coincident", 2, 2, 3, 1))
sketch4.addConstraint(Sketcher.Constraint("Coincident", 3, 2, 0, 1))
sketch4.addConstraint(Sketcher.Constraint("Coincident", 4, 2, 5, 1))
sketch4.addConstraint(Sketcher.Constraint("Coincident", 5, 2, 6, 1))
sketch4.addConstraint(Sketcher.Constraint("Coincident", 6, 2, 7, 1))
sketch4.addConstraint(Sketcher.Constraint("Coincident", 7, 2, 4, 1))
sketch4.addConstraint(Sketcher.Constraint("Coincident", 8, 2, 9, 1))
sketch4.addConstraint(Sketcher.Constraint("Coincident", 9, 2, 10, 1))
sketch4.addConstraint(Sketcher.Constraint("Coincident", 10, 2, 11, 1))
sketch4.addConstraint(Sketcher.Constraint("Coincident", 11, 2, 8, 1))
sketch4.addConstraint(Sketcher.Constraint("Coincident", 12, 2, 13, 1))
sketch4.addConstraint(Sketcher.Constraint("Coincident", 13, 2, 14, 1))
sketch4.addConstraint(Sketcher.Constraint("Coincident", 14, 2, 15, 1))
sketch4.addConstraint(Sketcher.Constraint("Coincident", 15, 2, 12, 1))
sketch4.addConstraint(Sketcher.Constraint("Coincident", 16, 2, 17, 1))
sketch4.addConstraint(Sketcher.Constraint("Coincident", 17, 2, 18, 1))
sketch4.addConstraint(Sketcher.Constraint("Coincident", 18, 2, 19, 1))
sketch4.addConstraint(Sketcher.Constraint("Coincident", 19, 2, 16, 1))
sketch4.addConstraint(Sketcher.Constraint("Coincident", 20, 2, 21, 1))
sketch4.addConstraint(Sketcher.Constraint("Coincident", 21, 2, 22, 1))
sketch4.addConstraint(Sketcher.Constraint("Coincident", 22, 2, 23, 1))
sketch4.addConstraint(Sketcher.Constraint("Coincident", 23, 2, 20, 1))
sketch4.addConstraint(Sketcher.Constraint("Coincident", 24, 2, 25, 1))
sketch4.addConstraint(Sketcher.Constraint("Coincident", 25, 2, 26, 1))
sketch4.addConstraint(Sketcher.Constraint("Coincident", 26, 2, 27, 1))
sketch4.addConstraint(Sketcher.Constraint("Coincident", 27, 2, 24, 1))
sketch4.addConstraint(Sketcher.Constraint("Coincident", 28, 2, 29, 1))
sketch4.addConstraint(Sketcher.Constraint("Coincident", 29, 2, 30, 1))
sketch4.addConstraint(Sketcher.Constraint("Coincident", 30, 2, 31, 1))
sketch4.addConstraint(Sketcher.Constraint("Coincident", 31, 2, 28, 1))
sketch4.addConstraint(Sketcher.Constraint("Coincident", 32, 2, 33, 1))
sketch4.addConstraint(Sketcher.Constraint("Coincident", 33, 2, 34, 1))
sketch4.addConstraint(Sketcher.Constraint("Coincident", 34, 2, 35, 1))
sketch4.addConstraint(Sketcher.Constraint("Coincident", 35, 2, 32, 1))
sketch4.addConstraint(Sketcher.Constraint("Coincident", 36, 2, 37, 1))
sketch4.addConstraint(Sketcher.Constraint("Coincident", 37, 2, 38, 1))
sketch4.addConstraint(Sketcher.Constraint("Coincident", 38, 2, 39, 1))
sketch4.addConstraint(Sketcher.Constraint("Coincident", 39, 2, 36, 1))
sketch4.addConstraint(Sketcher.Constraint("Coincident", 40, 2, 41, 1))
sketch4.addConstraint(Sketcher.Constraint("Coincident", 41, 2, 42, 1))
sketch4.addConstraint(Sketcher.Constraint("Coincident", 42, 2, 43, 1))
sketch4.addConstraint(Sketcher.Constraint("Coincident", 43, 2, 40, 1))
sketch4.addConstraint(Sketcher.Constraint("Coincident", 44, 2, 45, 1))
sketch4.addConstraint(Sketcher.Constraint("Coincident", 45, 2, 46, 1))
sketch4.addConstraint(Sketcher.Constraint("Coincident", 46, 2, 47, 1))
sketch4.addConstraint(Sketcher.Constraint("Coincident", 47, 2, 44, 1))
sketch4.addConstraint(Sketcher.Constraint("Horizontal", 0))
sketch4.addConstraint(Sketcher.Constraint("Vertical", 1))
sketch4.addConstraint(Sketcher.Constraint("Horizontal", 2))
sketch4.addConstraint(Sketcher.Constraint("Vertical", 3))
sketch4.addConstraint(Sketcher.Constraint("Horizontal", 4))
sketch4.addConstraint(Sketcher.Constraint("Vertical", 5))
sketch4.addConstraint(Sketcher.Constraint("Horizontal", 6))
sketch4.addConstraint(Sketcher.Constraint("Vertical", 7))
sketch4.addConstraint(Sketcher.Constraint("Horizontal", 8))
sketch4.addConstraint(Sketcher.Constraint("Vertical", 9))
sketch4.addConstraint(Sketcher.Constraint("Horizontal", 10))
sketch4.addConstraint(Sketcher.Constraint("Vertical", 11))
sketch4.addConstraint(Sketcher.Constraint("Horizontal", 12))
sketch4.addConstraint(Sketcher.Constraint("Vertical", 13))
sketch4.addConstraint(Sketcher.Constraint("Horizontal", 14))
sketch4.addConstraint(Sketcher.Constraint("Vertical", 15))
sketch4.addConstraint(Sketcher.Constraint("Horizontal", 16))
sketch4.addConstraint(Sketcher.Constraint("Vertical", 17))
sketch4.addConstraint(Sketcher.Constraint("Horizontal", 18))
sketch4.addConstraint(Sketcher.Constraint("Vertical", 19))
sketch4.addConstraint(Sketcher.Constraint("Horizontal", 20))
sketch4.addConstraint(Sketcher.Constraint("Vertical", 21))
sketch4.addConstraint(Sketcher.Constraint("Horizontal", 22))
sketch4.addConstraint(Sketcher.Constraint("Vertical", 23))
sketch4.addConstraint(Sketcher.Constraint("Horizontal", 24))
sketch4.addConstraint(Sketcher.Constraint("Vertical", 25))
sketch4.addConstraint(Sketcher.Constraint("Horizontal", 26))
sketch4.addConstraint(Sketcher.Constraint("Vertical", 27))
sketch4.addConstraint(Sketcher.Constraint("Horizontal", 28))
sketch4.addConstraint(Sketcher.Constraint("Vertical", 29))
sketch4.addConstraint(Sketcher.Constraint("Horizontal", 30))
sketch4.addConstraint(Sketcher.Constraint("Vertical", 31))
sketch4.addConstraint(Sketcher.Constraint("Horizontal", 32))
sketch4.addConstraint(Sketcher.Constraint("Vertical", 33))
sketch4.addConstraint(Sketcher.Constraint("Horizontal", 34))
sketch4.addConstraint(Sketcher.Constraint("Vertical", 35))
sketch4.addConstraint(Sketcher.Constraint("Horizontal", 36))
sketch4.addConstraint(Sketcher.Constraint("Vertical", 37))
sketch4.addConstraint(Sketcher.Constraint("Horizontal", 38))
sketch4.addConstraint(Sketcher.Constraint("Vertical", 39))
sketch4.addConstraint(Sketcher.Constraint("Horizontal", 40))
sketch4.addConstraint(Sketcher.Constraint("Vertical", 41))
sketch4.addConstraint(Sketcher.Constraint("Horizontal", 42))
sketch4.addConstraint(Sketcher.Constraint("Vertical", 43))
sketch4.addConstraint(Sketcher.Constraint("Horizontal", 44))
sketch4.addConstraint(Sketcher.Constraint("Vertical", 45))
sketch4.addConstraint(Sketcher.Constraint("Horizontal", 46))
sketch4.addConstraint(Sketcher.Constraint("Vertical", 47))
sketch4.addConstraint(Sketcher.Constraint("Vertical", 1, 2, 4, 2))
sketch4.addConstraint(Sketcher.Constraint("Vertical", 3, 2, 6, 2))
sketch4.addConstraint(Sketcher.Constraint("Vertical", 5, 2, 8, 2))
sketch4.addConstraint(Sketcher.Constraint("Vertical", 7, 2, 10, 2))
sketch4.addConstraint(Sketcher.Constraint("Vertical", 9, 2, 12, 2))
sketch4.addConstraint(Sketcher.Constraint("Vertical", 11, 2, 14, 2))
sketch4.addConstraint(Sketcher.Constraint("Vertical", 13, 2, 16, 2))
sketch4.addConstraint(Sketcher.Constraint("Vertical", 15, 2, 18, 2))
sketch4.addConstraint(Sketcher.Constraint("Vertical", 17, 2, 20, 2))
sketch4.addConstraint(Sketcher.Constraint("Vertical", 19, 2, 22, 2))
sketch4.addConstraint(Sketcher.Constraint("Vertical", 21, 2, 24, 2))
sketch4.addConstraint(Sketcher.Constraint("Vertical", 23, 2, 26, 2))
sketch4.addConstraint(Sketcher.Constraint("Vertical", 25, 2, 28, 2))
sketch4.addConstraint(Sketcher.Constraint("Vertical", 27, 2, 30, 2))
sketch4.addConstraint(Sketcher.Constraint("Vertical", 29, 2, 32, 2))
sketch4.addConstraint(Sketcher.Constraint("Vertical", 31, 2, 34, 2))
sketch4.addConstraint(Sketcher.Constraint("Vertical", 33, 2, 36, 2))
sketch4.addConstraint(Sketcher.Constraint("Vertical", 35, 2, 38, 2))
sketch4.addConstraint(Sketcher.Constraint("Vertical", 37, 2, 40, 2))
sketch4.addConstraint(Sketcher.Constraint("Vertical", 39, 2, 42, 2))
sketch4.addConstraint(Sketcher.Constraint("Vertical", 41, 2, 44, 2))
sketch4.addConstraint(Sketcher.Constraint("Vertical", 43, 2, 46, 2))
sketch4.addConstraint(Sketcher.Constraint("Equal", 3, 5))
sketch4.addConstraint(Sketcher.Constraint("Equal", 7, 9))
sketch4.addConstraint(Sketcher.Constraint("Equal", 11, 13))
sketch4.addConstraint(Sketcher.Constraint("Equal", 15, 17))
sketch4.addConstraint(Sketcher.Constraint("Equal", 19, 21))
sketch4.addConstraint(Sketcher.Constraint("Equal", 23, 25))
sketch4.addConstraint(Sketcher.Constraint("Equal", 27, 29))
sketch4.addConstraint(Sketcher.Constraint("Equal", 31, 33))
sketch4.addConstraint(Sketcher.Constraint("Equal", 35, 37))
sketch4.addConstraint(Sketcher.Constraint("Equal", 39, 41))
sketch4.addConstraint(Sketcher.Constraint("Equal", 43, 45))
sketch4.addConstraint(Sketcher.Constraint("DistanceX", 0, 2, 0, 1, 10.0))
sketch4.addConstraint(Sketcher.Constraint("DistanceY", 1, 1, 1, 2, 4.0))
sketch4.addConstraint(Sketcher.Constraint("DistanceX", -1, 1, 0, 2, 30.0))
sketch4.addConstraint(Sketcher.Constraint("DistanceY", 0, 2, -1, 1, 108.0))
sketch4.addConstraint(Sketcher.Constraint("DistanceY", 4, 2, -1, 1, 102.0))
sketch4.addConstraint(Sketcher.Constraint("DistanceY", 8, 2, -1, 1, 96.0))
sketch4.addConstraint(Sketcher.Constraint("DistanceY", 12, 2, -1, 1, 90.0))
sketch4.addConstraint(Sketcher.Constraint("DistanceY", 16, 2, -1, 1, 84.0))
sketch4.addConstraint(Sketcher.Constraint("DistanceY", 20, 2, -1, 1, 78.0))
sketch4.addConstraint(Sketcher.Constraint("DistanceY", 24, 2, -1, 1, 72.0))
sketch4.addConstraint(Sketcher.Constraint("DistanceY", 28, 2, -1, 1, 66.0))
sketch4.addConstraint(Sketcher.Constraint("DistanceY", 32, 2, -1, 1, 60.0))
sketch4.addConstraint(Sketcher.Constraint("DistanceY", 36, 2, -1, 1, 54.0))
sketch4.addConstraint(Sketcher.Constraint("DistanceY", 40, 2, -1, 1, 48.0))
sketch4.addConstraint(Sketcher.Constraint("DistanceY", 44, 2, -1, 1, 42.0))
pocket3 = body.newObject("PartDesign::Pocket", "Pocket002")
pocket3.Profile = sketch4
pocket3.Length = 10
pocket3.Reversed = True

# Sketch on XY plane
sketch5 = body.newObject("Sketcher::SketchObject", "Sketch004")
sketch5.AttachmentSupport = (doc.getObject("XY_Plane"), [""])
sketch5.MapMode = "FlatFace"
sketch5.AttachmentOffset = App.Placement(App.Vector(0, 0, -127), App.Rotation())
sketch5.addGeometry(Part.LineSegment(App.Vector(42.5, 39.5, 0), App.Vector(42.5, 29.5, 0)), False)
sketch5.addGeometry(Part.LineSegment(App.Vector(42.5, 29.5, 0), App.Vector(112.5, 29.5, 0)), False)
sketch5.addGeometry(Part.LineSegment(App.Vector(112.5, 29.5, 0), App.Vector(112.5, 39.5, 0)), False)
sketch5.addGeometry(Part.LineSegment(App.Vector(112.5, 39.5, 0), App.Vector(42.5, 39.5, 0)), False)
sketch5.addConstraint(Sketcher.Constraint("Coincident", 0, 2, 1, 1))
sketch5.addConstraint(Sketcher.Constraint("Coincident", 1, 2, 2, 1))
sketch5.addConstraint(Sketcher.Constraint("Coincident", 2, 2, 3, 1))
sketch5.addConstraint(Sketcher.Constraint("Coincident", 3, 2, 0, 1))
sketch5.addConstraint(Sketcher.Constraint("Vertical", 0))
sketch5.addConstraint(Sketcher.Constraint("Horizontal", 1))
sketch5.addConstraint(Sketcher.Constraint("Vertical", 2))
sketch5.addConstraint(Sketcher.Constraint("Horizontal", 3))
sketch5.addConstraint(Sketcher.Constraint("DistanceX", 1, 1, 1, 2, 70.0))
sketch5.addConstraint(Sketcher.Constraint("DistanceY", 0, 2, 0, 1, 10.0))
sketch5.addConstraint(Sketcher.Constraint("DistanceX", -1, 1, 0, 2, 42.5))
sketch5.addConstraint(Sketcher.Constraint("DistanceY", -1, 1, 0, 2, 29.5))
pocket4 = body.newObject("PartDesign::Pocket", "Pocket003")
pocket4.Profile = sketch5
pocket4.Length = 2
pocket4.Reversed = True

# Sketch on YZ plane
sketch6 = body.newObject("Sketcher::SketchObject", "Sketch005")
sketch6.AttachmentSupport = (doc.getObject("YZ_Plane"), [""])
sketch6.MapMode = "FlatFace"
sketch6.AttachmentOffset = App.Placement(App.Vector(0, 0, 128.5), App.Rotation())
sketch6.addGeometry(Part.LineSegment(App.Vector(40, -108, 0), App.Vector(30, -108, 0)), False)
sketch6.addGeometry(Part.LineSegment(App.Vector(30, -108, 0), App.Vector(30, -38, 0)), False)
sketch6.addGeometry(Part.LineSegment(App.Vector(30, -38, 0), App.Vector(40, -38, 0)), False)
sketch6.addGeometry(Part.LineSegment(App.Vector(40, -38, 0), App.Vector(40, -108, 0)), False)
sketch6.addConstraint(Sketcher.Constraint("Coincident", 0, 2, 1, 1))
sketch6.addConstraint(Sketcher.Constraint("Coincident", 1, 2, 2, 1))
sketch6.addConstraint(Sketcher.Constraint("Coincident", 2, 2, 3, 1))
sketch6.addConstraint(Sketcher.Constraint("Coincident", 3, 2, 0, 1))
sketch6.addConstraint(Sketcher.Constraint("Horizontal", 0))
sketch6.addConstraint(Sketcher.Constraint("Vertical", 1))
sketch6.addConstraint(Sketcher.Constraint("Horizontal", 2))
sketch6.addConstraint(Sketcher.Constraint("Vertical", 3))
sketch6.addConstraint(Sketcher.Constraint("DistanceX", 0, 2, 0, 1, 10.0))
sketch6.addConstraint(Sketcher.Constraint("DistanceY", 1, 1, 1, 2, 70.0))
sketch6.addConstraint(Sketcher.Constraint("DistanceX", -1, 1, 0, 2, 30.0))
sketch6.addConstraint(Sketcher.Constraint("DistanceY", 0, 2, -1, 1, 108.0))
pocket5 = body.newObject("PartDesign::Pocket", "Pocket004")
pocket5.Profile = sketch6
pocket5.Length = 2

# Sketch on XY plane
sketch7 = body.newObject("Sketcher::SketchObject", "Sketch006")
sketch7.AttachmentSupport = (doc.getObject("XY_Plane"), [""])
sketch7.MapMode = "FlatFace"
sketch7.AttachmentOffset = App.Placement(App.Vector(0, 0, -127), App.Rotation())
sketch7.addGeometry(Part.Circle(App.Vector(74.25, 17.25, 0), App.Vector(0, 0, 1), 3.25), False)
sketch7.addGeometry(Part.LineSegment(App.Vector(95.5, 20, 0), App.Vector(95.5, 14.5, 0)), False)
sketch7.addGeometry(Part.LineSegment(App.Vector(95.5, 14.5, 0), App.Vector(85.5, 14.5, 0)), False)
sketch7.addGeometry(Part.LineSegment(App.Vector(85.5, 14.5, 0), App.Vector(85.5, 20, 0)), False)
sketch7.addGeometry(Part.LineSegment(App.Vector(85.5, 20, 0), App.Vector(95.5, 20, 0)), False)
sketch7.addGeometry(Part.LineSegment(App.Vector(54.5, 19.25, 0), App.Vector(60.5, 19.25, 0)), False)
sketch7.addGeometry(Part.ArcOfCircle(Part.Circle(App.Vector(60.5, 17.25, 0), App.Vector(0, 0, 1), 2), math.radians(-90), math.radians(90)), False)
sketch7.addGeometry(Part.LineSegment(App.Vector(60.5, 15.25, 0), App.Vector(54.5, 15.25, 0)), False)
sketch7.addGeometry(Part.ArcOfCircle(Part.Circle(App.Vector(54.5, 17.25, 0), App.Vector(0, 0, 1), 2), math.radians(90), math.radians(270)), False)
sketch7.addGeometry(Part.LineSegment(App.Vector(35, 19.25, 0), App.Vector(41, 19.25, 0)), False)
sketch7.addGeometry(Part.ArcOfCircle(Part.Circle(App.Vector(41, 17.25, 0), App.Vector(0, 0, 1), 2), math.radians(-90), math.radians(90)), False)
sketch7.addGeometry(Part.LineSegment(App.Vector(41, 15.25, 0), App.Vector(35, 15.25, 0)), False)
sketch7.addGeometry(Part.ArcOfCircle(Part.Circle(App.Vector(35, 17.25, 0), App.Vector(0, 0, 1), 2), math.radians(90), math.radians(270)), False)
sketch7.addConstraint(Sketcher.Constraint("Coincident", 1, 2, 2, 1))
sketch7.addConstraint(Sketcher.Constraint("Coincident", 2, 2, 3, 1))
sketch7.addConstraint(Sketcher.Constraint("Coincident", 3, 2, 4, 1))
sketch7.addConstraint(Sketcher.Constraint("Coincident", 4, 2, 1, 1))
sketch7.addConstraint(Sketcher.Constraint("Tangent", 5, 2, 6, 2))
sketch7.addConstraint(Sketcher.Constraint("Tangent", 6, 1, 7, 1))
sketch7.addConstraint(Sketcher.Constraint("Tangent", 7, 2, 8, 2))
sketch7.addConstraint(Sketcher.Constraint("Tangent", 8, 1, 5, 1))
sketch7.addConstraint(Sketcher.Constraint("Tangent", 9, 2, 10, 2))
sketch7.addConstraint(Sketcher.Constraint("Tangent", 10, 1, 11, 1))
sketch7.addConstraint(Sketcher.Constraint("Tangent", 11, 2, 12, 2))
sketch7.addConstraint(Sketcher.Constraint("Tangent", 12, 1, 9, 1))
sketch7.addConstraint(Sketcher.Constraint("Vertical", 1))
sketch7.addConstraint(Sketcher.Constraint("Horizontal", 2))
sketch7.addConstraint(Sketcher.Constraint("Vertical", 3))
sketch7.addConstraint(Sketcher.Constraint("Horizontal", 4))
sketch7.addConstraint(Sketcher.Constraint("Horizontal", 5))
sketch7.addConstraint(Sketcher.Constraint("Horizontal", 7))
sketch7.addConstraint(Sketcher.Constraint("Horizontal", 9))
sketch7.addConstraint(Sketcher.Constraint("Horizontal", 11))
sketch7.addConstraint(Sketcher.Constraint("Equal", 8, 10))
sketch7.addConstraint(Sketcher.Constraint("Horizontal", 0, 3, 6, 3))
sketch7.addConstraint(Sketcher.Constraint("Horizontal", 8, 3, 10, 3))
sketch7.addConstraint(Sketcher.Constraint("Equal", 7, 9))
sketch7.addConstraint(Sketcher.Constraint("Radius", 6, 2.0))
sketch7.addConstraint(Sketcher.Constraint("Diameter", 0, 6.5))
sketch7.addConstraint(Sketcher.Constraint("DistanceX", 2, 2, 2, 1, 10.0))
sketch7.addConstraint(Sketcher.Constraint("DistanceX", 5, 1, 5, 2, 6.0))
sketch7.addConstraint(Sketcher.Constraint("DistanceY", 1, 2, 1, 1, 5.5))
sketch7.addConstraint(Sketcher.Constraint("DistanceX", -1, 1, 10, 3, 41.0))
sketch7.addConstraint(Sketcher.Constraint("DistanceY", -1, 1, 3, 2, 20.0))
sketch7.addConstraint(Sketcher.Constraint("DistanceX", 6, 3, 1, 2, 35.0))
sketch7.addConstraint(Sketcher.Constraint("DistanceX", -1, 1, 6, 3, 60.5))
sketch7.addConstraint(Sketcher.Constraint("DistanceX", -1, 1, 0, 3, 74.25))
sketch7.addConstraint(Sketcher.Constraint("DistanceY", -1, 1, 0, 3, 17.25))
pocket6 = body.newObject("PartDesign::Pocket", "Pocket005")
pocket6.Profile = sketch7
pocket6.Length = 10
pocket6.Reversed = True

# Sketch on XZ plane
sketch8 = body.newObject("Sketcher::SketchObject", "Sketch007")
sketch8.AttachmentSupport = (doc.getObject("XZ_Plane"), [""])
sketch8.MapMode = "FlatFace"
sketch8.addGeometry(Part.Circle(App.Vector(64.25, -106, 0), App.Vector(0, 0, 1), 1.65), False)
sketch8.addGeometry(Part.Circle(App.Vector(64.25, -21, 0), App.Vector(0, 0, 1), 1.65), False)
sketch8.addConstraint(Sketcher.Constraint("Equal", 0, 1))
sketch8.addConstraint(Sketcher.Constraint("Vertical", 0, 3, 1, 3))
sketch8.addConstraint(Sketcher.Constraint("Diameter", 0, 3.3))
sketch8.addConstraint(Sketcher.Constraint("DistanceY", 0, 3, -1, 1, 106.0))
sketch8.addConstraint(Sketcher.Constraint("DistanceY", 1, 3, -1, 1, 21.0))
sketch8.addConstraint(Sketcher.Constraint("DistanceX", -1, 1, 0, 3, 64.25))
doc.recompute()
hole = body.newObject("PartDesign::Hole", "Hole")
hole.Profile = sketch8
hole.ThreadType = "None"
hole.Diameter = 3.3
hole.DepthType = "Dimension"
hole.Depth = 6
hole.DrillPoint = "Angled"
hole.DrillPointAngle = 118
doc.recompute()

fillet = body.newObject("PartDesign::Fillet", "Fillet")
fillet.Base = (hole, edges_at(hole, [
    (0, 23.5, -127),
    (128.5, 23.5, -127),
    (128.5, 23.5, 0),
    (0, 23.5, 0),
]))
fillet.Radius = 10

doc.recompute()
